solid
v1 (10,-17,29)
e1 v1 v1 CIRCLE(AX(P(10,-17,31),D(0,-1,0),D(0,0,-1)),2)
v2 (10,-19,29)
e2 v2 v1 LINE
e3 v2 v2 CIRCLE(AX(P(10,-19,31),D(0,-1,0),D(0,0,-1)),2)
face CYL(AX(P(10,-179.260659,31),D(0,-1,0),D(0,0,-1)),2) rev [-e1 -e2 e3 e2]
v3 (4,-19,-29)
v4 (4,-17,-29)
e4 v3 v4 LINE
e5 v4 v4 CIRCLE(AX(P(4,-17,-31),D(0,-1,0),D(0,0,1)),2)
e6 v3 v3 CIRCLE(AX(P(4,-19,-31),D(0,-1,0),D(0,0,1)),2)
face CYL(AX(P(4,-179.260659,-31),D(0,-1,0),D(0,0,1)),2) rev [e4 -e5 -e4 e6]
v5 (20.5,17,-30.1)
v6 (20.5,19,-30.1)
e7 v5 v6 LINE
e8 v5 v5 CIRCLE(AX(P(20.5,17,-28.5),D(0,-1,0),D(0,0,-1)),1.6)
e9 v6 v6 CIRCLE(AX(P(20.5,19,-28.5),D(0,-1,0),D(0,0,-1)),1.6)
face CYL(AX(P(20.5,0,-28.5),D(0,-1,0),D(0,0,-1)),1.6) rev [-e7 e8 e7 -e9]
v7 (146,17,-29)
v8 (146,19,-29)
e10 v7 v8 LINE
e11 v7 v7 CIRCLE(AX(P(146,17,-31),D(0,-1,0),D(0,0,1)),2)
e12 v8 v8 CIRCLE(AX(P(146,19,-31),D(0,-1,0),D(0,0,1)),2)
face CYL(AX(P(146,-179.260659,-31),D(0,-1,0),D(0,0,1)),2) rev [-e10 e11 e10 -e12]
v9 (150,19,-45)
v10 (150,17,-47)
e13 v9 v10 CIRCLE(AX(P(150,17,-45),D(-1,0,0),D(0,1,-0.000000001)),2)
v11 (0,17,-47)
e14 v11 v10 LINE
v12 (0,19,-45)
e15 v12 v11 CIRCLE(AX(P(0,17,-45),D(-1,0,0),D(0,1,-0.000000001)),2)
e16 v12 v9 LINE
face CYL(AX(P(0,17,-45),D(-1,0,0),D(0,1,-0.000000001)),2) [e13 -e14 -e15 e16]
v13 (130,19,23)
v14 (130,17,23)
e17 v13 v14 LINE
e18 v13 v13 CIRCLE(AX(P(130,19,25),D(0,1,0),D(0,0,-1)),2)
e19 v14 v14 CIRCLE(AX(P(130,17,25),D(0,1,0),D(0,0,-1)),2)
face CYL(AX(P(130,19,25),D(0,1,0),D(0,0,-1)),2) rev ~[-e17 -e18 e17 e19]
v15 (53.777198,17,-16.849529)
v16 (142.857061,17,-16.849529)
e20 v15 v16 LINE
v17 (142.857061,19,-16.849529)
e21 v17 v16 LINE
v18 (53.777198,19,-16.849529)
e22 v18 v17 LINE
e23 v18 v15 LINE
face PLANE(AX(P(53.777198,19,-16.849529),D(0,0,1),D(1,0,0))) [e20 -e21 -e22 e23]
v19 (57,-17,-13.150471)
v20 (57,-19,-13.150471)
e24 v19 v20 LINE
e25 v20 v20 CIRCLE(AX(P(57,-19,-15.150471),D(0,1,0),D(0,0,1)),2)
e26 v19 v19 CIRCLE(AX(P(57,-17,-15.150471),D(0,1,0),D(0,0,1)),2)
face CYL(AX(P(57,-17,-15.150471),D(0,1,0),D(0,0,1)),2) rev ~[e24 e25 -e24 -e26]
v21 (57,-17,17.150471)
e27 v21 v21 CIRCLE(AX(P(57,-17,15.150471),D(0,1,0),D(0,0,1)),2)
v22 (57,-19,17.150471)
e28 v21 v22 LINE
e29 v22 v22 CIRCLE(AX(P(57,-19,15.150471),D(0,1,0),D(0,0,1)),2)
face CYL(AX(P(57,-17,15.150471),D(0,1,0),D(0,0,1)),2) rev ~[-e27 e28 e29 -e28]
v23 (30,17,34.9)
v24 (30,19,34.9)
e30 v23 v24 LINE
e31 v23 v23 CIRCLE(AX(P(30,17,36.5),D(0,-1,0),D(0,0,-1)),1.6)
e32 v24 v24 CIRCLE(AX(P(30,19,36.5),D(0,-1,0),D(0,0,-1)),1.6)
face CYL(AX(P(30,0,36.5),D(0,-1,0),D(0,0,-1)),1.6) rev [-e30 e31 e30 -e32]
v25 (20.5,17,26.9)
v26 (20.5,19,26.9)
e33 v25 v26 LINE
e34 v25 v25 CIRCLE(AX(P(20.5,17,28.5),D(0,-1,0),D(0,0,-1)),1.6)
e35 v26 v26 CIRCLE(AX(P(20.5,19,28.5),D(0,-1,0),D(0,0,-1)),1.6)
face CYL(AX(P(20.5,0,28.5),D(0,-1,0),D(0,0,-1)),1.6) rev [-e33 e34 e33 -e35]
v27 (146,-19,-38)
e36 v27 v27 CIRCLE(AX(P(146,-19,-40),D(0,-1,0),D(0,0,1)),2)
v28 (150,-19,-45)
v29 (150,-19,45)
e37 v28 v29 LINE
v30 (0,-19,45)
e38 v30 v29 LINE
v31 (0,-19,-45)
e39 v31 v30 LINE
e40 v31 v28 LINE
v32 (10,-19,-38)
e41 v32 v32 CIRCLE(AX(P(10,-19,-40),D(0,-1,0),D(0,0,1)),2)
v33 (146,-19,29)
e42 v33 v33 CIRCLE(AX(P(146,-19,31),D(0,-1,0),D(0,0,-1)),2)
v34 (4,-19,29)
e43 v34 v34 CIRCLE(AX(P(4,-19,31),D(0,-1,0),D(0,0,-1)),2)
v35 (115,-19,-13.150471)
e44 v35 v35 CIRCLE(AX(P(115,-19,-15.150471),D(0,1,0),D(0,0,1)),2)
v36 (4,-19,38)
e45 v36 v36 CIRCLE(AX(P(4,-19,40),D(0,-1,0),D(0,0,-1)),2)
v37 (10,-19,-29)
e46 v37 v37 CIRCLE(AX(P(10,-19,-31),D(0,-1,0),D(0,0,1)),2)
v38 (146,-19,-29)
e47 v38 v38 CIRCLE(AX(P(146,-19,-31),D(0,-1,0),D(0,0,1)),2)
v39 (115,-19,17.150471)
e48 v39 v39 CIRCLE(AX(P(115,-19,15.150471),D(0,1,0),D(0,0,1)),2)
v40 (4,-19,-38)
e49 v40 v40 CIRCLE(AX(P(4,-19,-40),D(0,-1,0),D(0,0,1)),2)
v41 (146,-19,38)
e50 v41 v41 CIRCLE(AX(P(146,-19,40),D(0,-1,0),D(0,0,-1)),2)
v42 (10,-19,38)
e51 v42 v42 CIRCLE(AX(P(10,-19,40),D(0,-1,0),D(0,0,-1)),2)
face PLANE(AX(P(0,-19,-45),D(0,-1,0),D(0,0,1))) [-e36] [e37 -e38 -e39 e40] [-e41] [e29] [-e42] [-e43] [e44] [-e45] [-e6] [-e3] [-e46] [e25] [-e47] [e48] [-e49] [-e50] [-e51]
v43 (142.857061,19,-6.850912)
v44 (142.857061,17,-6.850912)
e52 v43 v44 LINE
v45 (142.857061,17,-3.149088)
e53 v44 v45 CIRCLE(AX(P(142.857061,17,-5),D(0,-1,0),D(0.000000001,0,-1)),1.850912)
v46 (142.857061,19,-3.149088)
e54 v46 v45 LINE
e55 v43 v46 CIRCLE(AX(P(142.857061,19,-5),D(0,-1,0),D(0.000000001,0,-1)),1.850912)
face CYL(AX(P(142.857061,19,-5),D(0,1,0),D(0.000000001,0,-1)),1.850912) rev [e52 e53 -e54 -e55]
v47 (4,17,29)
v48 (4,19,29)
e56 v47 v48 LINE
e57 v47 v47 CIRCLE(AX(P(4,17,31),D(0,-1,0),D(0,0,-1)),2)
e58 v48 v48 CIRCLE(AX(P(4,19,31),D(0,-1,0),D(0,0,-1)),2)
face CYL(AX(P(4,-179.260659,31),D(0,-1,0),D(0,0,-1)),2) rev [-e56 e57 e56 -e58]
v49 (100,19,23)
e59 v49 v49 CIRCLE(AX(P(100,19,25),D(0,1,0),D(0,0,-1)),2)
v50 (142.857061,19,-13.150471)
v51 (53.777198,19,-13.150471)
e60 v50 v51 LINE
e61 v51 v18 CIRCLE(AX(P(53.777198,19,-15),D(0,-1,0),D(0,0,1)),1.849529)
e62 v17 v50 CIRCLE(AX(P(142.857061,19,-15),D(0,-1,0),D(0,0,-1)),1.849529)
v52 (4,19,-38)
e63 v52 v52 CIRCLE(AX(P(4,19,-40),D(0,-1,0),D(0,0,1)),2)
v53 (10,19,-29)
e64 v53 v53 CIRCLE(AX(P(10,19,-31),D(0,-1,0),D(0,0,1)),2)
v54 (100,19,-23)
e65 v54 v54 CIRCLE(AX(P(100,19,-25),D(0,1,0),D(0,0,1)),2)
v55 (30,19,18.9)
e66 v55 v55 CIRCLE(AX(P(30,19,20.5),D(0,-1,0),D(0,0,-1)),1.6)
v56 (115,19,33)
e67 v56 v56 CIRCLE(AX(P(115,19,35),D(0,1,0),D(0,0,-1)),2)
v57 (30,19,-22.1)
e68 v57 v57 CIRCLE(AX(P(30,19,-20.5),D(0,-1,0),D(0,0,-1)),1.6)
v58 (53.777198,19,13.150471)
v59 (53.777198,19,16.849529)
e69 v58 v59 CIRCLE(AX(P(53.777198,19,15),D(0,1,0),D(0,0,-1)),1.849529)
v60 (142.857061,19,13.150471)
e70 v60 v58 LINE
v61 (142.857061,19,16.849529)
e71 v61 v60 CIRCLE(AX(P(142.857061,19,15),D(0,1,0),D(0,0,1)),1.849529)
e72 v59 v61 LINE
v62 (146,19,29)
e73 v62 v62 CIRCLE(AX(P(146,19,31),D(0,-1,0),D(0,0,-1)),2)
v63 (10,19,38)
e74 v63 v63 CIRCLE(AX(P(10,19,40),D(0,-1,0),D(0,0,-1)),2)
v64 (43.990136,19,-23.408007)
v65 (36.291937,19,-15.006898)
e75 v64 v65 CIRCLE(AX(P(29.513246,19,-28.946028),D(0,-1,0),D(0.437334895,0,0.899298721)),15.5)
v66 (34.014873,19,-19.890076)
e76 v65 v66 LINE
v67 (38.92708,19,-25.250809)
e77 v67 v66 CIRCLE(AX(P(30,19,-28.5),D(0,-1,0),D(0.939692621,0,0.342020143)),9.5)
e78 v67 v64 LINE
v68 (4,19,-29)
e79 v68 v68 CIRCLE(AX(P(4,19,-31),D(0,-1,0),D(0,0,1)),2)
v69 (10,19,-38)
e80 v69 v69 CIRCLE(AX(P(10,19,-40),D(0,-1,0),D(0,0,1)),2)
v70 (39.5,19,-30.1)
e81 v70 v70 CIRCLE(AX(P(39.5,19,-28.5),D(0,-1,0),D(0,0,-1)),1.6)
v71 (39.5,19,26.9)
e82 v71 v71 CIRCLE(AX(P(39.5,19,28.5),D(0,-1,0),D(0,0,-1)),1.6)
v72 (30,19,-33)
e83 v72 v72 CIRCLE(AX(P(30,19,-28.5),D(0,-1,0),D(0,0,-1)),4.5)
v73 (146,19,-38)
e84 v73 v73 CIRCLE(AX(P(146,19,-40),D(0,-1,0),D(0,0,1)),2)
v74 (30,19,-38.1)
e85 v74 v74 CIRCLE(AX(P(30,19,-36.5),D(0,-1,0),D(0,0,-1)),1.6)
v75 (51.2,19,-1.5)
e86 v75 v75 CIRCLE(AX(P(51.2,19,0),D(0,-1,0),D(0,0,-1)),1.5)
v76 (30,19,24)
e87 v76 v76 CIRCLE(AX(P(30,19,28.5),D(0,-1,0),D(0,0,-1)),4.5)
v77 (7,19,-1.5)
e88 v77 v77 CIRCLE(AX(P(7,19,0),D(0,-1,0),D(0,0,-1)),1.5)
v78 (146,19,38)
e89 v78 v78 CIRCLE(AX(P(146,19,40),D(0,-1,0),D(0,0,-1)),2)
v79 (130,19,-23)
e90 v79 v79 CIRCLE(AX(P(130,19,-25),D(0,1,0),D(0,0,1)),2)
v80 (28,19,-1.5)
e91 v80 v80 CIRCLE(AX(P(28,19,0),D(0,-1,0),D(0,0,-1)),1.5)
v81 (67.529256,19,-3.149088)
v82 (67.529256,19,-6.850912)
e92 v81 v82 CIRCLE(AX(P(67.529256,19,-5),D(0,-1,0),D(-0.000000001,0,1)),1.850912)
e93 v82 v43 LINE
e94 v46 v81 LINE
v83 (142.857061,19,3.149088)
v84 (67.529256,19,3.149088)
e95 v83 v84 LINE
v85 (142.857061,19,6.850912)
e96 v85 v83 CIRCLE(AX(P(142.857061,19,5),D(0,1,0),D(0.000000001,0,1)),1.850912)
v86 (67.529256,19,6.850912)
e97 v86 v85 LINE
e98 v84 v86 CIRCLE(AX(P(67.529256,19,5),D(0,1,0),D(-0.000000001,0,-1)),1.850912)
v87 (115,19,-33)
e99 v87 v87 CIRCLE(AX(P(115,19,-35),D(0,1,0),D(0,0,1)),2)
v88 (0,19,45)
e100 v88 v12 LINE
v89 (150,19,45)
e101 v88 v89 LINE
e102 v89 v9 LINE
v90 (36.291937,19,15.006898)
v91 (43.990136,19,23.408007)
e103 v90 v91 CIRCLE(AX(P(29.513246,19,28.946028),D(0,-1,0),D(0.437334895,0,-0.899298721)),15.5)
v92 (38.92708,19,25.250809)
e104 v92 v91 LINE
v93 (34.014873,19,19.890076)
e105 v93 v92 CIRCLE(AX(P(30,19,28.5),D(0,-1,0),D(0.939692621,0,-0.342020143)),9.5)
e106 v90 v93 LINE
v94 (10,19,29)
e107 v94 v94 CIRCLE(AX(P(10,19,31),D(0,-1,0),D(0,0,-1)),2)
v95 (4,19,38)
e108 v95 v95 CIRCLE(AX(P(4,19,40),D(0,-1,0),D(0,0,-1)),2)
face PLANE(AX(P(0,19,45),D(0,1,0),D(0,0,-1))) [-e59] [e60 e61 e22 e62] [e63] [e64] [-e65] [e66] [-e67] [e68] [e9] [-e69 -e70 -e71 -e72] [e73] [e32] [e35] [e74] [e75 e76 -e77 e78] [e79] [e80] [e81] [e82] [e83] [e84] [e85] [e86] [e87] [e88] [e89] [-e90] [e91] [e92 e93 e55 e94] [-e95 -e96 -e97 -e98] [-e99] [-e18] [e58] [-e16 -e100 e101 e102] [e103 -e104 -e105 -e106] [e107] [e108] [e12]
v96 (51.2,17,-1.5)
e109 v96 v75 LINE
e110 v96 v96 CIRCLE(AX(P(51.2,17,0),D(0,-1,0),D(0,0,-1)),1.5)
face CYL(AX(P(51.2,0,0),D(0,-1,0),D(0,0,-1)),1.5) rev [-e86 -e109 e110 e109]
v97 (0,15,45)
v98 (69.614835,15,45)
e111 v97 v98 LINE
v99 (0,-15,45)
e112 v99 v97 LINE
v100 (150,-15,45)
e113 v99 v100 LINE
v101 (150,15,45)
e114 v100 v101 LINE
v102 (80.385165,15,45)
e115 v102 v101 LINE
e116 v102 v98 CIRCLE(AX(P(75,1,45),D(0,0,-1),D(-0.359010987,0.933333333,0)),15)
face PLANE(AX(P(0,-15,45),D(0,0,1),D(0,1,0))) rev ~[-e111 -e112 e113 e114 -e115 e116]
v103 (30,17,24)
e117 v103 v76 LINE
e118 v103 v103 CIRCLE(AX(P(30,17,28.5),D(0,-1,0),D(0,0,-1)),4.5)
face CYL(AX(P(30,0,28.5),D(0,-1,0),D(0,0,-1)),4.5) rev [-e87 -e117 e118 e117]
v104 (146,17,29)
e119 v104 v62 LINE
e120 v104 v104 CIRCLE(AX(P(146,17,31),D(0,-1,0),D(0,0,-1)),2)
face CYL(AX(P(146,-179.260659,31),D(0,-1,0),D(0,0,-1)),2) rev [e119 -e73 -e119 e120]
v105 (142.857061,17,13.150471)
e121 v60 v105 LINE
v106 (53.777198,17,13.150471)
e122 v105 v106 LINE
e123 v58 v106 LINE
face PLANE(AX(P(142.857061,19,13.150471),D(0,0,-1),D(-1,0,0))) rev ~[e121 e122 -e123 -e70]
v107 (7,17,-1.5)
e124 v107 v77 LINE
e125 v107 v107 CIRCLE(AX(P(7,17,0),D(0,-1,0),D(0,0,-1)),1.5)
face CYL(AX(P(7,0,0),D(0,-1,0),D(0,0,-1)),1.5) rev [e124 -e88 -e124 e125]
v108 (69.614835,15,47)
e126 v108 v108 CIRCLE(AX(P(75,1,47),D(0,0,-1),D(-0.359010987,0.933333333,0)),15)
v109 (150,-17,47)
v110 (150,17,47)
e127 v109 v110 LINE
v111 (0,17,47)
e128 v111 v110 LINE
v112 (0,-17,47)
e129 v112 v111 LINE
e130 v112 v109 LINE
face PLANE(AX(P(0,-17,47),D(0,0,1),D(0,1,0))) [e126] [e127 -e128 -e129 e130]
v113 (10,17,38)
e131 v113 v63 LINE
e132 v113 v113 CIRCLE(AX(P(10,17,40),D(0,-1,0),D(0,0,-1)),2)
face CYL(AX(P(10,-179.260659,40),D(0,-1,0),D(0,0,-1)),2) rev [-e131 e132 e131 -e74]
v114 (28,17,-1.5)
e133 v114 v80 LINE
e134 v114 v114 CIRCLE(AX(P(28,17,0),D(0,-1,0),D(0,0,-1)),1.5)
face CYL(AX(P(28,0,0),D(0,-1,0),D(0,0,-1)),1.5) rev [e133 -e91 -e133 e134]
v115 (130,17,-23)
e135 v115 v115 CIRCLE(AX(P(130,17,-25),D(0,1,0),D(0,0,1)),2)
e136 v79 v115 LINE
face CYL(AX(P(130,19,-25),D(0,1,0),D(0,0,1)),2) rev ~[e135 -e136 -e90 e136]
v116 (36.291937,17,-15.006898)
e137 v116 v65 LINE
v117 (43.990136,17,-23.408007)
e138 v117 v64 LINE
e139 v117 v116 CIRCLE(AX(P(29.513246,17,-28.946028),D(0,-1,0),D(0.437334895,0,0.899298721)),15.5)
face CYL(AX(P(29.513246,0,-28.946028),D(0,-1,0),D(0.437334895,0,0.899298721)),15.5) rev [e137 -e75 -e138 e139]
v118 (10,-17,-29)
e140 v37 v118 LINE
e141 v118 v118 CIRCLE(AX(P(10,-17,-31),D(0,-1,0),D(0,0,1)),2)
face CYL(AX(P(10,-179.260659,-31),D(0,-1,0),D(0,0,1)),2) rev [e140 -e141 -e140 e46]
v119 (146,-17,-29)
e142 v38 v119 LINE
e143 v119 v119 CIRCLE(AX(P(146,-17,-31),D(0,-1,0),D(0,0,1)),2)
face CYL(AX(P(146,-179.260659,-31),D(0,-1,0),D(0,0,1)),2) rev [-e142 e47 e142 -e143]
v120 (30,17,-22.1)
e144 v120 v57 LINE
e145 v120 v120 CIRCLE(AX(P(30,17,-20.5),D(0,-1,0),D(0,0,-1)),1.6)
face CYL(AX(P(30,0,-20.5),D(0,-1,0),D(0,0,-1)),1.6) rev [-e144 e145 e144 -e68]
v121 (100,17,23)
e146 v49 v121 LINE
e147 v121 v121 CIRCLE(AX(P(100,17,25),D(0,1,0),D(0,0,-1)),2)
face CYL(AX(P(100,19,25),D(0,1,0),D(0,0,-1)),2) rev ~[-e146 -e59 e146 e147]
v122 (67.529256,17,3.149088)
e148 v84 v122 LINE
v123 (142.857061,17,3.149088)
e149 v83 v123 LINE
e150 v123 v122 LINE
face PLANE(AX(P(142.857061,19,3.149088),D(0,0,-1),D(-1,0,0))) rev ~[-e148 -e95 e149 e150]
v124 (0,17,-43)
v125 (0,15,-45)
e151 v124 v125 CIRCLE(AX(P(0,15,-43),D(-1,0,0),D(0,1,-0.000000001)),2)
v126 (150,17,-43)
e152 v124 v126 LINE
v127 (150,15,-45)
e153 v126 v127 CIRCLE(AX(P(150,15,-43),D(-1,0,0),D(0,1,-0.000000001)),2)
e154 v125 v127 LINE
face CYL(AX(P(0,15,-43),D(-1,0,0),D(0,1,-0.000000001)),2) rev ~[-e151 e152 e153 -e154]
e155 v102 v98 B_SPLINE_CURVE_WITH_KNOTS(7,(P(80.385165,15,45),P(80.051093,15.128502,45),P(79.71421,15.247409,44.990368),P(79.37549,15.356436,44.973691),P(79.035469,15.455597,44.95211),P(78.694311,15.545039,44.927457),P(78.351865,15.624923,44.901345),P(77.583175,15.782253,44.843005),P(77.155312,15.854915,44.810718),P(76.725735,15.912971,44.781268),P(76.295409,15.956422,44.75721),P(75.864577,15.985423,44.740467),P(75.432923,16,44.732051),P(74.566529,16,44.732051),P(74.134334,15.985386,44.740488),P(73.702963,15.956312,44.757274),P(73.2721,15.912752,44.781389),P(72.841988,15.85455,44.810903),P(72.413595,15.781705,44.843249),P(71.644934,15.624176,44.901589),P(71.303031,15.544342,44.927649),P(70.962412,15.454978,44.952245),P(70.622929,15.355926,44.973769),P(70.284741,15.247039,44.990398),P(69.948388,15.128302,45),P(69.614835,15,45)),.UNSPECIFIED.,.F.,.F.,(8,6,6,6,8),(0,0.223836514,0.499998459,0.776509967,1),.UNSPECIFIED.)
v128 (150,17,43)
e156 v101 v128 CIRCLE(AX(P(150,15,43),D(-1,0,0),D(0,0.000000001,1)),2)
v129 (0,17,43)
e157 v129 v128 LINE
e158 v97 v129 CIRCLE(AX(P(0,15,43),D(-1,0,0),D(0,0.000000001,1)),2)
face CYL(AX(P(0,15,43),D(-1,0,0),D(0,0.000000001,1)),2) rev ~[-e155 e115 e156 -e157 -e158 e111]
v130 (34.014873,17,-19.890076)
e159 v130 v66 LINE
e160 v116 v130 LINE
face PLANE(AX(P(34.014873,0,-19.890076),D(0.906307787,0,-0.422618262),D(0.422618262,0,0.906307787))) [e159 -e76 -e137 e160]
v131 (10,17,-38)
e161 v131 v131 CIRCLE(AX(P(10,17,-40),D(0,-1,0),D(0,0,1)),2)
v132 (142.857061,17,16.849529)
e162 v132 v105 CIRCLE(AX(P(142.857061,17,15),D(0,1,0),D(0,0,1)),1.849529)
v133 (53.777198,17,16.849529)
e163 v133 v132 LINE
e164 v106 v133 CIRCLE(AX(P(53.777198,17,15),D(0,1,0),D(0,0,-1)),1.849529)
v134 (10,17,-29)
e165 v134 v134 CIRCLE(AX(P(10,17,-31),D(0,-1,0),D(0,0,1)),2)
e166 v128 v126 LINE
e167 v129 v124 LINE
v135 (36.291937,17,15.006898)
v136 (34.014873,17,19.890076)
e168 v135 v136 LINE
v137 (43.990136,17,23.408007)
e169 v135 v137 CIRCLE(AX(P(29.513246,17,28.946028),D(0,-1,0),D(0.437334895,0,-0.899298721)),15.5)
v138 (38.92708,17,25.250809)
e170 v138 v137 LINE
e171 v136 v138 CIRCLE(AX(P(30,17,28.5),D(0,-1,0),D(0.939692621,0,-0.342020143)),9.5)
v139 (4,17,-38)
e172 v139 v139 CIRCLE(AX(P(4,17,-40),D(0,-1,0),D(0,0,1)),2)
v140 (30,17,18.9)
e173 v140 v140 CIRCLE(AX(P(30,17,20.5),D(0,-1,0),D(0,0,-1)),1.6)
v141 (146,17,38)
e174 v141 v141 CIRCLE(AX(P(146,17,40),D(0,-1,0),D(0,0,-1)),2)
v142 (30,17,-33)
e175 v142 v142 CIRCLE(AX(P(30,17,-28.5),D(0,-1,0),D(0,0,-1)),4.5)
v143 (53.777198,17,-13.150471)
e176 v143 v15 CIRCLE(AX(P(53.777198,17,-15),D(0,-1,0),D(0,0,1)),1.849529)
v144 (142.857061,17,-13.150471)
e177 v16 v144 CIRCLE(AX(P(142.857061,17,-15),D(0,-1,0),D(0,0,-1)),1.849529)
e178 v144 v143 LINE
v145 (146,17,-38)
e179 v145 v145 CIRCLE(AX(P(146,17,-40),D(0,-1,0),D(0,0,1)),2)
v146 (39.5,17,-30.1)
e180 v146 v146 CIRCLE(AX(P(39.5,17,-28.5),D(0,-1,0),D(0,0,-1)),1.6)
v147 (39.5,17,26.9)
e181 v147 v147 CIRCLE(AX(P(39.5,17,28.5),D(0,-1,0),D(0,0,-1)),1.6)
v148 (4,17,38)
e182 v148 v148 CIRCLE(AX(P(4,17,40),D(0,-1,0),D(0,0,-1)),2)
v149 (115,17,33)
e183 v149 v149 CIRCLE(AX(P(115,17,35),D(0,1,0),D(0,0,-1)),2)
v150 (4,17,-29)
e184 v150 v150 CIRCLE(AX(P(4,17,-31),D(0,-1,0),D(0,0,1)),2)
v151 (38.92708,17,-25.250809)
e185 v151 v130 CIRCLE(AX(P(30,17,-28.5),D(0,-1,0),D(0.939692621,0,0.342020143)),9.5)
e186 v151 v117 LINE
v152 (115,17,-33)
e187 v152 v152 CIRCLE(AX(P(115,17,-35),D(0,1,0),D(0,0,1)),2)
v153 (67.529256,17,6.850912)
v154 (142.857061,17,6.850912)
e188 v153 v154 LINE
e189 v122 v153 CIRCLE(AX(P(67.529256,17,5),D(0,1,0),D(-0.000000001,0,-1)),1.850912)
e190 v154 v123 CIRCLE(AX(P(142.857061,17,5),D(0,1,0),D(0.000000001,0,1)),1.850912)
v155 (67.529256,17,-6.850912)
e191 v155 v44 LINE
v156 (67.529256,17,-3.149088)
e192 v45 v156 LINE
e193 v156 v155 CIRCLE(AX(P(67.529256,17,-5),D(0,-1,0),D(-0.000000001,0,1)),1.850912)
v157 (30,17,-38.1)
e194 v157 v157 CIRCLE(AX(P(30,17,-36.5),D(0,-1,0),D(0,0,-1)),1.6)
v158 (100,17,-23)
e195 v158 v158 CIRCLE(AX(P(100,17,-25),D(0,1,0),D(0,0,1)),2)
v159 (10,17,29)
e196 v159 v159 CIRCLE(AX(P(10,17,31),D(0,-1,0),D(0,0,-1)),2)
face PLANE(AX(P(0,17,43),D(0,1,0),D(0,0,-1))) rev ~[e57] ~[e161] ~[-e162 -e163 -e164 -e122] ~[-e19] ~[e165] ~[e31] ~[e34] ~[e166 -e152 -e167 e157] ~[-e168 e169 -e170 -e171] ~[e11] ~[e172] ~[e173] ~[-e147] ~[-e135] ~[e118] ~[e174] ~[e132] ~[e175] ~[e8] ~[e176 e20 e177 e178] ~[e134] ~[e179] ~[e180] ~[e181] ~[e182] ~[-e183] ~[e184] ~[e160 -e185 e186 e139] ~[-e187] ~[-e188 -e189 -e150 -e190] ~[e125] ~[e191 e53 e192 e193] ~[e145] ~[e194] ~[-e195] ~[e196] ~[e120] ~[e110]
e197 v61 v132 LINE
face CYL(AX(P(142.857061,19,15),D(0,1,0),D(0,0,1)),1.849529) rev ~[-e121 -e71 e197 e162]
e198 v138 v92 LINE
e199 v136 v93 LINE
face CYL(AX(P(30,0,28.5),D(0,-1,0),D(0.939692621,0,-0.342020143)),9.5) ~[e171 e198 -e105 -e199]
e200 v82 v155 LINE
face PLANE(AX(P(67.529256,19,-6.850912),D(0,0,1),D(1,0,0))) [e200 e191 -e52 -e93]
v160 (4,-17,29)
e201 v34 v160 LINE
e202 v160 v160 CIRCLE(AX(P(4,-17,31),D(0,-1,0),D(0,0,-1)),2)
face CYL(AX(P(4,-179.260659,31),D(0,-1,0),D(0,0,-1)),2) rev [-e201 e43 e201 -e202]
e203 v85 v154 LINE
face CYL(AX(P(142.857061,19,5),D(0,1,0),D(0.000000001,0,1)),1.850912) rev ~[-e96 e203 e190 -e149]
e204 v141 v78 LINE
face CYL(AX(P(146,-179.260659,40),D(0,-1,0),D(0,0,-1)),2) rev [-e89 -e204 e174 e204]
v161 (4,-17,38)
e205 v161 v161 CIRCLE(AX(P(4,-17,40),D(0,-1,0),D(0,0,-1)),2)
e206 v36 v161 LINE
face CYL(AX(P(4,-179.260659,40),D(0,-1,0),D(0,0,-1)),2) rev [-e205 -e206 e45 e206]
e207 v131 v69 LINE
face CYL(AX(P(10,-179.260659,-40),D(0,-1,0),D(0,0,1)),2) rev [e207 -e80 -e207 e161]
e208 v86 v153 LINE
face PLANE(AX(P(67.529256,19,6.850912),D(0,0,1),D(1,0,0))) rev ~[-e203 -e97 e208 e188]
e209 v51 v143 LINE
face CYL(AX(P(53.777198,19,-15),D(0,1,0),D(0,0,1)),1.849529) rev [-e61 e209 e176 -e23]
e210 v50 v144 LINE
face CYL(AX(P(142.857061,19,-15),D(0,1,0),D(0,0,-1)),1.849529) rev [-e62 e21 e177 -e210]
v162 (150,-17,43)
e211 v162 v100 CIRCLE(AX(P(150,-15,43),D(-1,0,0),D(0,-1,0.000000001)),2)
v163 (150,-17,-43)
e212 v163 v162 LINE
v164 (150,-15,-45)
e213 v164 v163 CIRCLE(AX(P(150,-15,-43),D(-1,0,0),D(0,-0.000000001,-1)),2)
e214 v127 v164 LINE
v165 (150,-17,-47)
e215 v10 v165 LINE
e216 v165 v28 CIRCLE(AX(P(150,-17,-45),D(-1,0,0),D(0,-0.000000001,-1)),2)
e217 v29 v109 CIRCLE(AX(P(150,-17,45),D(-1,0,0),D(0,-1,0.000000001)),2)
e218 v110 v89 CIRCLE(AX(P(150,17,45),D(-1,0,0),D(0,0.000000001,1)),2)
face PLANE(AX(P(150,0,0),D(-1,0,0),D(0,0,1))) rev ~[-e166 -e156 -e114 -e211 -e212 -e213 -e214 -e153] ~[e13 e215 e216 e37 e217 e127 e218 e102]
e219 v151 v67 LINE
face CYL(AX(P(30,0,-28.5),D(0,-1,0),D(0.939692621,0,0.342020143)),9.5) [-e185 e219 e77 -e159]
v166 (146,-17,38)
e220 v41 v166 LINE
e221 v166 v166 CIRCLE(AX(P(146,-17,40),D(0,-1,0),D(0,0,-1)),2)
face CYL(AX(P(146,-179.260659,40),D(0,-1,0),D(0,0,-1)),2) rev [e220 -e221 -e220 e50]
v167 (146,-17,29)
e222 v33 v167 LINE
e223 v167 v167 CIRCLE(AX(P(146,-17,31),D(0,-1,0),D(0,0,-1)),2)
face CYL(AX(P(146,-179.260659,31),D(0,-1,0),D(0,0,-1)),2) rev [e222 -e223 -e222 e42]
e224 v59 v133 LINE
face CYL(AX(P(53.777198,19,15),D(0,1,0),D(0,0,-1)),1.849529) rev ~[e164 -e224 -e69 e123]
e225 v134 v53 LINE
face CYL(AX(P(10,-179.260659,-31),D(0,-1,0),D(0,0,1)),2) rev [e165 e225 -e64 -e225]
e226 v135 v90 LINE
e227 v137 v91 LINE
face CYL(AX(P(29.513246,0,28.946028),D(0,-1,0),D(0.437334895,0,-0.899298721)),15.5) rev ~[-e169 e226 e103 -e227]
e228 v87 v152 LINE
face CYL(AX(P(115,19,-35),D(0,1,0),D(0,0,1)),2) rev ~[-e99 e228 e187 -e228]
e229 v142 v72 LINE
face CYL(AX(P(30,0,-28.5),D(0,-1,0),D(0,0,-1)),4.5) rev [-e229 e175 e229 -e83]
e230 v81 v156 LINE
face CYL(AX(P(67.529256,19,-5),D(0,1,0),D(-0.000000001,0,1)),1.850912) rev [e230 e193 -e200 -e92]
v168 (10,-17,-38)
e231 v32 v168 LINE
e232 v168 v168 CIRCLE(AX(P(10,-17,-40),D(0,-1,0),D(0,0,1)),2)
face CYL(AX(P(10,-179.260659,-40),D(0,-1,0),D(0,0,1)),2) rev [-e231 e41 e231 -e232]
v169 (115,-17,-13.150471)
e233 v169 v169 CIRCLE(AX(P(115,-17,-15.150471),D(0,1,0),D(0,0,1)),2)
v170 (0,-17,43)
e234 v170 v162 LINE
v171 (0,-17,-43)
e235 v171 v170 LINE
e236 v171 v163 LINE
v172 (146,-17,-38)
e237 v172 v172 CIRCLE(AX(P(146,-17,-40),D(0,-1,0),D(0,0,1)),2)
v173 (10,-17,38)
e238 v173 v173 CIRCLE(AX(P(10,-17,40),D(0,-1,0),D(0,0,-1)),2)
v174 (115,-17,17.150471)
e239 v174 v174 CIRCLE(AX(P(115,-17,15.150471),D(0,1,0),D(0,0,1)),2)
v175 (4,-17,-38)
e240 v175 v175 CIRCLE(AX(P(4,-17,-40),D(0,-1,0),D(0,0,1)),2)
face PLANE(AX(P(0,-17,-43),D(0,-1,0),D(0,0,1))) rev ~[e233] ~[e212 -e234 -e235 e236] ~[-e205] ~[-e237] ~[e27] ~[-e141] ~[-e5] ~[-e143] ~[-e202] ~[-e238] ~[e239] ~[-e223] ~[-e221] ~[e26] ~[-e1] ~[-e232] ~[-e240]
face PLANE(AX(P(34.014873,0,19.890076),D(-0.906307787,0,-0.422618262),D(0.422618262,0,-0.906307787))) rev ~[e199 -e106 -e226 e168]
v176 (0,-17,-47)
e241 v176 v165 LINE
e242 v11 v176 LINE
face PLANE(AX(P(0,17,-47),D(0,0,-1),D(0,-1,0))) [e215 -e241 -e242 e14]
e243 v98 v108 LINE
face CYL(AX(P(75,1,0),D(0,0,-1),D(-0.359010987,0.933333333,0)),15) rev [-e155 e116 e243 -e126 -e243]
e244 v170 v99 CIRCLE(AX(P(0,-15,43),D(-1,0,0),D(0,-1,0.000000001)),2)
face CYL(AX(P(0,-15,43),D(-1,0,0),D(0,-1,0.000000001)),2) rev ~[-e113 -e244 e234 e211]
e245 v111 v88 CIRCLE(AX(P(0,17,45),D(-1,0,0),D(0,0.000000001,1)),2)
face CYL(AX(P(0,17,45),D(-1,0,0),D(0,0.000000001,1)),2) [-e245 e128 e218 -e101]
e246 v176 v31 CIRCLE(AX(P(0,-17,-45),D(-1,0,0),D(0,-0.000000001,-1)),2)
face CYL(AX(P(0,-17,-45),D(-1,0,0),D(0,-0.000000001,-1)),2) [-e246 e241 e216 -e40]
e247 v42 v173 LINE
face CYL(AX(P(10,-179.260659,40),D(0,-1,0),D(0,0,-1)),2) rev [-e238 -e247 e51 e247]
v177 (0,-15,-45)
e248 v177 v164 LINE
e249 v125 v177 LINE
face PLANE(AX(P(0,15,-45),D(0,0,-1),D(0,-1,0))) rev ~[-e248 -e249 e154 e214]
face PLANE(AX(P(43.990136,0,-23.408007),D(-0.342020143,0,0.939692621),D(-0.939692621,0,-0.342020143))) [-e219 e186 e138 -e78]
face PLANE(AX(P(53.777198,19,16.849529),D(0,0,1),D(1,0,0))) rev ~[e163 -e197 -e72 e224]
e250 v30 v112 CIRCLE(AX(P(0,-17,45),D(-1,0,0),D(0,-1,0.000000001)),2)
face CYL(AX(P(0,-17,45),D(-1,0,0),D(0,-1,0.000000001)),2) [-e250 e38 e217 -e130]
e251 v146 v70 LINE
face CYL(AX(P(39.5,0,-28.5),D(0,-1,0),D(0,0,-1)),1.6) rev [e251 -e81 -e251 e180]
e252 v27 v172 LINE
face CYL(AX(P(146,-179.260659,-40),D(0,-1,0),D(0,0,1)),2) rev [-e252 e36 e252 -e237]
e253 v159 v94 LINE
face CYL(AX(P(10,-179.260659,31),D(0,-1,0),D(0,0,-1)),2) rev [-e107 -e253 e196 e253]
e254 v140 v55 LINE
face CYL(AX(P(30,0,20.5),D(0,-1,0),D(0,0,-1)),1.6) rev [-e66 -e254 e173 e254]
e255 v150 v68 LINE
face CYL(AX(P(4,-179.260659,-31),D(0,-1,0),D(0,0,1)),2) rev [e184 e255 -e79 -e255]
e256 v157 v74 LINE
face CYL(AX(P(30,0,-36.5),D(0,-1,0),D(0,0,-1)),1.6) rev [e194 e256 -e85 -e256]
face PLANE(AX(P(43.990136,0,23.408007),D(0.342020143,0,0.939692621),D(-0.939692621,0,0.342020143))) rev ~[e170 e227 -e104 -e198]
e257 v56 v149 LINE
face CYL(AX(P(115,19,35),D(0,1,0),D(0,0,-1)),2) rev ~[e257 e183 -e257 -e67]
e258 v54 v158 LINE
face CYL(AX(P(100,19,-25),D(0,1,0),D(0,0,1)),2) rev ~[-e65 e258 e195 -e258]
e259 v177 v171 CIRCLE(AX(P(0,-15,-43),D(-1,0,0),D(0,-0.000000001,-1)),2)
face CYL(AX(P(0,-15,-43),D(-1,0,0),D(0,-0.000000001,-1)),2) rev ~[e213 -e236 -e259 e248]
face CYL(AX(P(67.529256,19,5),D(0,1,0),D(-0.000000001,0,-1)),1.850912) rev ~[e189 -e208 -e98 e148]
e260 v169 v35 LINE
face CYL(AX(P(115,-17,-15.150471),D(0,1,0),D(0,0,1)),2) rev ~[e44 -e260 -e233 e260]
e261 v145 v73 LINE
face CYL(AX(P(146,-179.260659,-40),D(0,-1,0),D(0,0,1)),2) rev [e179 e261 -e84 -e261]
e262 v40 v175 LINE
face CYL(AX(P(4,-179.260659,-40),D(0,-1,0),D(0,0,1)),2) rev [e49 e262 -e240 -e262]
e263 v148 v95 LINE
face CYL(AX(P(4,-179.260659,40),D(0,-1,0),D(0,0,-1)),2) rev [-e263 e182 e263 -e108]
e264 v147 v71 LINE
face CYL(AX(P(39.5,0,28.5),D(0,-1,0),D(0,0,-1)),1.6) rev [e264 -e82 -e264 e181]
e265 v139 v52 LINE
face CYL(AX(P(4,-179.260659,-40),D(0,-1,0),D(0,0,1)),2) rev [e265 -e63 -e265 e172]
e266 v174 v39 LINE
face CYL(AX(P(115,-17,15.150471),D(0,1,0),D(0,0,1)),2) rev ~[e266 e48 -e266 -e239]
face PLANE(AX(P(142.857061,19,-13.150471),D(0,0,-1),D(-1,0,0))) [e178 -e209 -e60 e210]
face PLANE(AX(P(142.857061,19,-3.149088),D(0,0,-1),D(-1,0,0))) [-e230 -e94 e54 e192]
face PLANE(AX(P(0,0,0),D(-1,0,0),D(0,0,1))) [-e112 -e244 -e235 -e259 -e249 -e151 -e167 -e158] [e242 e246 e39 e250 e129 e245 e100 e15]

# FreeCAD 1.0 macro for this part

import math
import FreeCAD as App
import Part
import Sketcher
from FreeCAD import Vector
Q = App.Units.Quantity

doc = App.newDocument("Part")
params = doc.addObject("Spreadsheet::Sheet", "Params")
for row, (alias, value) in enumerate([
    ("sketch1_radius", "2 mm"),
    ("sketch1_width", "34 mm"),
    ("sketch1_height", "90 mm"),
    ("pad1_length", "150 mm"),
    ("sketch2_diameter", "3 mm"),
    ("sketch2_diameter2", "9 mm"),
    ("sketch2_diameter3", "3.2 mm"),
    ("sketch2_radius", "15.5 mm"),
    ("sketch2_radius2", "9.5 mm"),
    ("sketch3_diameter", "30 mm"),
    ("sketch4_diameter", "4 mm"),
    ("pocket3_length", "2 mm"),
    ("sketch5_diameter", "4 mm"),
    ("sketch6_diameter", "4 mm"),
], start=1):
    params.set(f"A{row}", alias)
    params.set(f"B{row}", "=" + value)
    params.setAlias(f"B{row}", alias)

body = doc.addObject("PartDesign::Body", "Body")

# Sketch on YZ plane
sketch1 = doc.addObject("Sketcher::SketchObject", "Sketch")
body.addObject(sketch1)
sketch1.AttachmentSupport = (doc.YZ_Plane, [""])
sketch1.MapMode = "FlatFace"
sketch1.addGeometry([
    Part.LineSegment(Vector(19, -45, 0), Vector(19, 45, 0)),  # 0
    Part.ArcOfCircle(Part.Circle(Vector(17, 45, 0), Vector(0, 0, 1), 2), math.radians(0), math.radians(90)),  # 1
    Part.LineSegment(Vector(17, 47, 0), Vector(-17, 47, 0)),  # 2
    Part.ArcOfCircle(Part.Circle(Vector(-17, 45, 0), Vector(0, 0, 1), 2), math.radians(90), math.radians(180)),  # 3
    Part.LineSegment(Vector(-19, 45, 0), Vector(-19, -45, 0)),  # 4
    Part.ArcOfCircle(Part.Circle(Vector(-17, -45, 0), Vector(0, 0, 1), 2), math.radians(-180), math.radians(-90)),  # 5
    Part.LineSegment(Vector(-17, -47, 0), Vector(17, -47, 0)),  # 6
    Part.ArcOfCircle(Part.Circle(Vector(17, -45, 0), Vector(0, 0, 1), 2), math.radians(-90), math.radians(0)),  # 7
    Part.LineSegment(Vector(17, 43, 0), Vector(17, -43, 0)),  # 8
    Part.ArcOfCircle(Part.Circle(Vector(15, -43, 0), Vector(0, 0, 1), 2), math.radians(-90), math.radians(0)),  # 9
    Part.LineSegment(Vector(15, -45, 0), Vector(-15, -45, 0)),  # 10
    Part.ArcOfCircle(Part.Circle(Vector(-15, -43, 0), Vector(0, 0, 1), 2), math.radians(-180), math.radians(-90)),  # 11
    Part.LineSegment(Vector(-17, -43, 0), Vector(-17, 43, 0)),  # 12
    Part.ArcOfCircle(Part.Circle(Vector(-15, 43, 0), Vector(0, 0, 1), 2), math.radians(90), math.radians(180)),  # 13
    Part.LineSegment(Vector(-15, 45, 0), Vector(15, 45, 0)),  # 14
    Part.ArcOfCircle(Part.Circle(Vector(15, 43, 0), Vector(0, 0, 1), 2), math.radians(0), math.radians(90)),  # 15
], False)
sketch1.addConstraint([
    Sketcher.Constraint("Tangent", 0, 2, 1, 1),
    Sketcher.Constraint("Tangent", 1, 2, 2, 1),
    Sketcher.Constraint("Tangent", 2, 2, 3, 1),
    Sketcher.Constraint("Tangent", 3, 2, 4, 1),
    Sketcher.Constraint("Tangent", 4, 2, 5, 1),
    Sketcher.Constraint("Tangent", 5, 2, 6, 1),
    Sketcher.Constraint("Tangent", 6, 2, 7, 1),
    Sketcher.Constraint("Tangent", 7, 2, 0, 1),
    Sketcher.Constraint("Tangent", 8, 2, 9, 2),
    Sketcher.Constraint("Tangent", 9, 1, 10, 1),
    Sketcher.Constraint("Tangent", 10, 2, 11, 2),
    Sketcher.Constraint("Tangent", 11, 1, 12, 1),
    Sketcher.Constraint("Tangent", 12, 2, 13, 2),
    Sketcher.Constraint("Tangent", 13, 1, 14, 1),
    Sketcher.Constraint("Tangent", 14, 2, 15, 2),
    Sketcher.Constraint("Tangent", 15, 1, 8, 1),
    Sketcher.Constraint("Vertical", 0),
    Sketcher.Constraint("Horizontal", 2),
    Sketcher.Constraint("Vertical", 4),
    Sketcher.Constraint("Horizontal", 6),
    Sketcher.Constraint("Vertical", 8),
    Sketcher.Constraint("Horizontal", 10),
    Sketcher.Constraint("Vertical", 12),
    Sketcher.Constraint("Horizontal", 14),
    Sketcher.Constraint("Equal", 1, 3),
    Sketcher.Constraint("Equal", 3, 5),
    Sketcher.Constraint("Equal", 5, 7),
    Sketcher.Constraint("Equal", 7, 9),
    Sketcher.Constraint("Equal", 9, 11),
    Sketcher.Constraint("Equal", 11, 13),
    Sketcher.Constraint("Equal", 13, 15),
    Sketcher.Constraint("Symmetric", 1, 3, 5, 3, -1, 1),
    Sketcher.Constraint("Symmetric", 9, 3, 13, 3, -1, 1),
    Sketcher.Constraint("Horizontal", 7, 2, 9, 1),
    Sketcher.Constraint("Vertical", 6, 2, 8, 2),
    Sketcher.Constraint("Radius", 1, Q("2 mm")),
    Sketcher.Constraint("DistanceX", 2, 2, 2, 1, Q("34 mm")),
    Sketcher.Constraint("DistanceY", 0, 1, 0, 2, Q("90 mm")),
])
sketch1.setExpression("Constraints[35]", "Params.sketch1_radius")
sketch1.setExpression("Constraints[36]", "Params.sketch1_width")
sketch1.setExpression("Constraints[37]", "Params.sketch1_height")
pad1 = doc.addObject("PartDesign::Pad", "Pad")
body.addObject(pad1)
pad1.Profile = sketch1
pad1.setExpression("Length", "Params.pad1_length")

# Sketch on XZ plane
sketch2 = doc.addObject("Sketcher::SketchObject", "Sketch001")
body.addObject(sketch2)
sketch2.AttachmentSupport = (doc.XZ_Plane, [""])
sketch2.MapMode = "FlatFace"
sketch2.addGeometry([
    Part.Circle(Vector(7, 0, 0), Vector(0, 0, 1), 1.5),  # 0
    Part.Circle(Vector(28, 0, 0), Vector(0, 0, 1), 1.5),  # 1
    Part.Circle(Vector(51.2, 0, 0), Vector(0, 0, 1), 1.5),  # 2
    Part.Circle(Vector(30, 28.5, 0), Vector(0, 0, 1), 4.5),  # 3
    Part.Circle(Vector(30, -28.5, 0), Vector(0, 0, 1), 4.5),  # 4
    Part.Circle(Vector(20.5, 28.5, 0), Vector(0, 0, 1), 1.6),  # 5
    Part.Circle(Vector(39.5, 28.5, 0), Vector(0, 0, 1), 1.6),  # 6
    Part.Circle(Vector(30, 36.5, 0), Vector(0, 0, 1), 1.6),  # 7
    Part.Circle(Vector(30, 20.5, 0), Vector(0, 0, 1), 1.6),  # 8
    Part.Circle(Vector(39.5, -28.5, 0), Vector(0, 0, 1), 1.6),  # 9
    Part.Circle(Vector(30, -36.5, 0), Vector(0, 0, 1), 1.6),  # 10
    Part.Circle(Vector(20.5, -28.5, 0), Vector(0, 0, 1), 1.6),  # 11
    Part.Circle(Vector(30, -20.5, 0), Vector(0, 0, 1), 1.6),  # 12
    Part.LineSegment(Vector(34, -19.9, 0), Vector(36.3, -15, 0)),  # 13
    Part.ArcOfCircle(Part.Circle(Vector(29.5, -28.9, 0), Vector(0, 0, 1), 15.5), math.radians(21), math.radians(64)),  # 14
    Part.LineSegment(Vector(44, -23.4, 0), Vector(38.9, -25.3, 0)),  # 15
    Part.ArcOfCircle(Part.Circle(Vector(30, -28.5, 0), Vector(0, 0, 1), 9.5), math.radians(20), math.radians(65)),  # 16
    Part.LineSegment(Vector(36.3, 15, 0), Vector(34, 19.9, 0)),  # 17
    Part.ArcOfCircle(Part.Circle(Vector(30, 28.5, 0), Vector(0, 0, 1), 9.5), math.radians(-65), math.radians(-20)),  # 18
    Part.LineSegment(Vector(38.9, 25.3, 0), Vector(44, 23.4, 0)),  # 19
    Part.ArcOfCircle(Part.Circle(Vector(29.5, 28.9, 0), Vector(0, 0, 1), 15.5), math.radians(-64), math.radians(-21)),  # 20
], False)
sketch2.addConstraint([
    Sketcher.Constraint("Coincident", 13, 2, 14, 2),
    Sketcher.Constraint("Coincident", 14, 1, 15, 1),
    Sketcher.Constraint("Coincident", 15, 2, 16, 1),
    Sketcher.Constraint("Coincident", 16, 2, 13, 1),
    Sketcher.Constraint("Coincident", 17, 2, 18, 1),
    Sketcher.Constraint("Coincident", 18, 2, 19, 1),
    Sketcher.Constraint("Coincident", 19, 2, 20, 2),
    Sketcher.Constraint("Coincident", 20, 1, 17, 1),
    Sketcher.Constraint("Coincident", 16, 3, 4, 3),
    Sketcher.Constraint("Coincident", 18, 3, 3, 3),
    Sketcher.Constraint("Equal", 0, 1),
    Sketcher.Constraint("Equal", 1, 2),
    Sketcher.Constraint("Equal", 3, 4),
    Sketcher.Constraint("Equal", 5, 6),
    Sketcher.Constraint("Equal", 6, 7),
    Sketcher.Constraint("Equal", 7, 8),
    Sketcher.Constraint("Equal", 8, 9),
    Sketcher.Constraint("Equal", 9, 10),
    Sketcher.Constraint("Equal", 10, 11),
    Sketcher.Constraint("Equal", 11, 12),
    Sketcher.Constraint("Equal", 16, 18),
    Sketcher.Constraint("Equal", 14, 20),
    Sketcher.Constraint("Symmetric", 3, 3, 4, 3, -1),
    Sketcher.Constraint("Symmetric", 6, 3, 9, 3, -1),
    Sketcher.Constraint("Symmetric", 7, 3, 10, 3, -1),
    Sketcher.Constraint("Symmetric", 5, 3, 11, 3, -1),
    Sketcher.Constraint("Symmetric", 8, 3, 12, 3, -1),
    Sketcher.Constraint("Symmetric", 14, 3, 20, 3, -1),
    Sketcher.Constraint("PointOnObject", 0, 3, -1),
    Sketcher.Constraint("PointOnObject", 1, 3, -1),
    Sketcher.Constraint("PointOnObject", 2, 3, -1),
    Sketcher.Constraint("Horizontal", 3, 3, 5, 3),
    Sketcher.Constraint("Horizontal", 5, 3, 6, 3),
    Sketcher.Constraint("Vertical", 4, 3, 7, 3),
    Sketcher.Constraint("Vertical", 7, 3, 8, 3),
    Sketcher.Constraint("Vertical", 16, 2, 17, 2),
    Sketcher.Constraint("Vertical", 15, 2, 18, 2),
    Sketcher.Constraint("Vertical", 14, 1, 19, 2),
    Sketcher.Constraint("Vertical", 13, 2, 20, 1),
    Sketcher.Constraint("Equal", 13, 15),
    Sketcher.Constraint("Diameter", 0, Q("3 mm")),
    Sketcher.Constraint("Diameter", 3, Q("9 mm")),
    Sketcher.Constraint("Diameter", 5, Q("3.2 mm")),
    Sketcher.Constraint("Radius", 14, Q("15.5 mm")),
    Sketcher.Constraint("Radius", 16, Q("9.5 mm")),
    Sketcher.Constraint("Angle", 13, Q("65 deg")),
    Sketcher.Constraint("Angle", 15, Q("-160 deg")),
    Sketcher.Constraint("DistanceX", -1, 1, 0, 3, Q("7 mm")),
    Sketcher.Constraint("DistanceX", -1, 1, 1, 3, Q("28 mm")),
    Sketcher.Constraint("DistanceX", -1, 1, 3, 3, Q("30 mm")),
    Sketcher.Constraint("DistanceY", 4, 3, 3, 3, Q("57 mm")),
    Sketcher.Constraint("DistanceX", 5, 3, 6, 3, Q("19 mm")),
    Sketcher.Constraint("DistanceY", 3, 3, 7, 3, Q("8 mm")),
    Sketcher.Constraint("DistanceY", 8, 3, 3, 3, Q("8 mm")),
    Sketcher.Constraint("DistanceX", -1, 1, 2, 3, Q("51.2 mm")),
    Sketcher.Constraint("DistanceX", -1, 1, 5, 3, Q("20.5 mm")),
    Sketcher.Constraint("DistanceX", 13, 2, 14, 1, Q("7.698199 mm")),
    Sketcher.Constraint("DistanceY", 15, 2, 14, 1, Q("1.842802 mm")),
    Sketcher.Constraint("DistanceX", -1, 1, 15, 2, Q("38.92708 mm")),
])
sketch2.setExpression("Constraints[40]", "Params.sketch2_diameter")
sketch2.setExpression("Constraints[41]", "Params.sketch2_diameter2")
sketch2.setExpression("Constraints[42]", "Params.sketch2_diameter3")
sketch2.setExpression("Constraints[43]", "Params.sketch2_radius")
sketch2.setExpression("Constraints[44]", "Params.sketch2_radius2")
pocket1 = doc.addObject("PartDesign::Pocket", "Pocket")
body.addObject(pocket1)
pocket1.Profile = sketch2
pocket1.Type = "ThroughAll"

# Sketch on XY plane
sketch3 = doc.addObject("Sketcher::SketchObject", "Sketch002")
body.addObject(sketch3)
sketch3.AttachmentSupport = (doc.XY_Plane, [""])
sketch3.MapMode = "FlatFace"
sketch3.addGeometry(Part.Circle(Vector(75, 1, 0), Vector(0, 0, 1), 15), False)
sketch3.addConstraint([
    Sketcher.Constraint("Diameter", 0, Q("30 mm")),
    Sketcher.Constraint("DistanceX", -1, 1, 0, 3, Q("75 mm")),
    Sketcher.Constraint("DistanceY", -1, 1, 0, 3, Q("1 mm")),
])
sketch3.setExpression("Constraints[0]", "Params.sketch3_diameter")
pocket2 = doc.addObject("PartDesign::Pocket", "Pocket001")
body.addObject(pocket2)
pocket2.Profile = sketch3
pocket2.Type = "ThroughAll"
pocket2.Reversed = True

# Sketch on XZ plane
sketch4 = doc.addObject("Sketcher::SketchObject", "Sketch003")
body.addObject(sketch4)
sketch4.AttachmentSupport = (doc.XZ_Plane, [""])
sketch4.MapMode = "FlatFace"
sketch4.AttachmentOffset = App.Placement(Vector(0, 0, -19), App.Rotation())
sketch4.addGeometry([
    Part.Circle(Vector(100, -25, 0), Vector(0, 0, 1), 2),  # 0
    Part.Circle(Vector(130, -25, 0), Vector(0, 0, 1), 2),  # 1
    Part.Circle(Vector(115, -35, 0), Vector(0, 0, 1), 2),  # 2
    Part.Circle(Vector(115, 35, 0), Vector(0, 0, 1), 2),  # 3
    Part.Circle(Vector(130, 25, 0), Vector(0, 0, 1), 2),  # 4
    Part.Circle(Vector(100, 25, 0), Vector(0, 0, 1), 2),  # 5
    Part.LineSegment(Vector(142.9, -16.8, 0), Vector(53.8, -16.8, 0)),  # 6
    Part.ArcOfCircle(Part.Circle(Vector(53.8, -15, 0), Vector(0, 0, 1), 1.8), math.radians(90), math.radians(270)),  # 7
    Part.LineSegment(Vector(53.8, -13.2, 0), Vector(142.9, -13.2, 0)),  # 8
    Part.ArcOfCircle(Part.Circle(Vector(142.9, -15, 0), Vector(0, 0, 1), 1.8), math.radians(-90), math.radians(90)),  # 9
    Part.LineSegment(Vector(142.9, -6.9, 0), Vector(67.5, -6.9, 0)),  # 10
    Part.ArcOfCircle(Part.Circle(Vector(67.5, -5, 0), Vector(0, 0, 1), 1.9), math.radians(90), math.radians(270)),  # 11
    Part.LineSegment(Vector(67.5, -3.1, 0), Vector(142.9, -3.1, 0)),  # 12
    Part.ArcOfCircle(Part.Circle(Vector(142.9, -5, 0), Vector(0, 0, 1), 1.9), math.radians(-90), math.radians(90)),  # 13
    Part.LineSegment(Vector(53.8, 16.8, 0), Vector(142.9, 16.8, 0)),  # 14
    Part.ArcOfCircle(Part.Circle(Vector(142.9, 15, 0), Vector(0, 0, 1), 1.8), math.radians(-90), math.radians(90)),  # 15
    Part.LineSegment(Vector(142.9, 13.2, 0), Vector(53.8, 13.2, 0)),  # 16
    Part.ArcOfCircle(Part.Circle(Vector(53.8, 15, 0), Vector(0, 0, 1), 1.8), math.radians(90), math.radians(270)),  # 17
    Part.LineSegment(Vector(67.5, 6.9, 0), Vector(142.9, 6.9, 0)),  # 18
    Part.ArcOfCircle(Part.Circle(Vector(142.9, 5, 0), Vector(0, 0, 1), 1.9), math.radians(-90), math.radians(90)),  # 19
    Part.LineSegment(Vector(142.9, 3.1, 0), Vector(67.5, 3.1, 0)),  # 20
    Part.ArcOfCircle(Part.Circle(Vector(67.5, 5, 0), Vector(0, 0, 1), 1.9), math.radians(90), math.radians(270)),  # 21
], False)
sketch4.addConstraint([
    Sketcher.Constraint("Tangent", 6, 2, 7, 2),
    Sketcher.Constraint("Tangent", 7, 1, 8, 1),
    Sketcher.Constraint("Tangent", 8, 2, 9, 2),
    Sketcher.Constraint("Tangent", 9, 1, 6, 1),
    Sketcher.Constraint("Tangent", 10, 2, 11, 2),
    Sketcher.Constraint("Tangent", 11, 1, 12, 1),
    Sketcher.Constraint("Tangent", 12, 2, 13, 2),
    Sketcher.Constraint("Tangent", 13, 1, 10, 1),
    Sketcher.Constraint("Tangent", 14, 2, 15, 2),
    Sketcher.Constraint("Tangent", 15, 1, 16, 1),
    Sketcher.Constraint("Tangent", 16, 2, 17, 2),
    Sketcher.Constraint("Tangent", 17, 1, 14, 1),
    Sketcher.Constraint("Tangent", 18, 2, 19, 2),
    Sketcher.Constraint("Tangent", 19, 1, 20, 1),
    Sketcher.Constraint("Tangent", 20, 2, 21, 2),
    Sketcher.Constraint("Tangent", 21, 1, 18, 1),
    Sketcher.Constraint("Horizontal", 6),
    Sketcher.Constraint("Horizontal", 8),
    Sketcher.Constraint("Horizontal", 10),
    Sketcher.Constraint("Horizontal", 12),
    Sketcher.Constraint("Horizontal", 14),
    Sketcher.Constraint("Horizontal", 16),
    Sketcher.Constraint("Horizontal", 18),
    Sketcher.Constraint("Horizontal", 20),
    Sketcher.Constraint("Equal", 0, 1),
    Sketcher.Constraint("Equal", 1, 2),
    Sketcher.Constraint("Equal", 2, 3),
    Sketcher.Constraint("Equal", 3, 4),
    Sketcher.Constraint("Equal", 4, 5),
    Sketcher.Constraint("Equal", 9, 15),
    Sketcher.Constraint("Equal", 13, 19),
    Sketcher.Constraint("Symmetric", 2, 3, 3, 3, -1),
    Sketcher.Constraint("Symmetric", 1, 3, 4, 3, -1),
    Sketcher.Constraint("Symmetric", 0, 3, 5, 3, -1),
    Sketcher.Constraint("Symmetric", 9, 3, 15, 3, -1),
    Sketcher.Constraint("Symmetric", 13, 3, 19, 3, -1),
    Sketcher.Constraint("Horizontal", 0, 3, 1, 3),
    Sketcher.Constraint("Vertical", 9, 3, 13, 3),
    Sketcher.Constraint("Vertical", 7, 3, 17, 3),
    Sketcher.Constraint("Vertical", 11, 3, 21, 3),
    Sketcher.Constraint("Diameter", 0, Q("4 mm")),
    Sketcher.Constraint("DistanceX", -1, 1, 0, 3, Q("100 mm")),
    Sketcher.Constraint("DistanceY", 0, 3, -1, 1, Q("25 mm")),
    Sketcher.Constraint("DistanceX", -1, 1, 1, 3, Q("130 mm")),
    Sketcher.Constraint("DistanceX", -1, 1, 2, 3, Q("115 mm")),
    Sketcher.Constraint("DistanceY", 2, 3, -1, 1, Q("35 mm")),
    Sketcher.Constraint("DistanceY", 7, 3, -1, 1, Q("15 mm")),
    Sketcher.Constraint("DistanceY", 11, 3, -1, 1, Q("5 mm")),
    Sketcher.Constraint("Radius", 7, Q("1.849529 mm")),
    Sketcher.Constraint("Radius", 11, Q("1.850912 mm")),
    Sketcher.Constraint("DistanceX", 6, 2, 6, 1, Q("89.079863 mm")),
    Sketcher.Constraint("DistanceX", 10, 2, 10, 1, Q("75.327805 mm")),
    Sketcher.Constraint("DistanceX", -1, 1, 9, 3, Q("142.857061 mm")),
])
sketch4.setExpression("Constraints[40]", "Params.sketch4_diameter")
pocket3 = doc.addObject("PartDesign::Pocket", "Pocket002")
body.addObject(pocket3)
pocket3.Profile = sketch4
pocket3.setExpression("Length", "Params.pocket3_length")
pocket3.Reversed = True

# Sketch on XZ plane
sketch5 = doc.addObject("Sketcher::SketchObject", "Sketch004")
body.addObject(sketch5)
sketch5.AttachmentSupport = (doc.XZ_Plane, [""])
sketch5.MapMode = "FlatFace"
sketch5.AttachmentOffset = App.Placement(Vector(0, 0, 17), App.Rotation())
sketch5.addGeometry([
    Part.Circle(Vector(4, -40, 0), Vector(0, 0, 1), 2),  # 0
    Part.Circle(Vector(4, -31, 0), Vector(0, 0, 1), 2),  # 1
    Part.Circle(Vector(4, 31, 0), Vector(0, 0, 1), 2),  # 2
    Part.Circle(Vector(4, 40, 0), Vector(0, 0, 1), 2),  # 3
    Part.Circle(Vector(146, -40, 0), Vector(0, 0, 1), 2),  # 4
    Part.Circle(Vector(146, -31, 0), Vector(0, 0, 1), 2),  # 5
    Part.Circle(Vector(146, 40, 0), Vector(0, 0, 1), 2),  # 6
    Part.Circle(Vector(146, 31, 0), Vector(0, 0, 1), 2),  # 7
    Part.Circle(Vector(10, -40, 0), Vector(0, 0, 1), 2),  # 8
    Part.Circle(Vector(10, -31, 0), Vector(0, 0, 1), 2),  # 9
    Part.Circle(Vector(10, 40, 0), Vector(0, 0, 1), 2),  # 10
    Part.Circle(Vector(10, 31, 0), Vector(0, 0, 1), 2),  # 11
], False)
sketch5.addConstraint([
    Sketcher.Constraint("Equal", 0, 1),
    Sketcher.Constraint("Equal", 1, 2),
    Sketcher.Constraint("Equal", 2, 3),
    Sketcher.Constraint("Equal", 3, 4),
    Sketcher.Constraint("Equal", 4, 5),
    Sketcher.Constraint("Equal", 5, 6),
    Sketcher.Constraint("Equal", 6, 7),
    Sketcher.Constraint("Equal", 7, 8),
    Sketcher.Constraint("Equal", 8, 9),
    Sketcher.Constraint("Equal", 9, 10),
    Sketcher.Constraint("Equal", 10, 11),
    Sketcher.Constraint("Symmetric", 1, 3, 2, 3, -1),
    Sketcher.Constraint("Symmetric", 0, 3, 3, 3, -1),
    Sketcher.Constraint("Symmetric", 4, 3, 6, 3, -1),
    Sketcher.Constraint("Symmetric", 5, 3, 7, 3, -1),
    Sketcher.Constraint("Symmetric", 8, 3, 10, 3, -1),
    Sketcher.Constraint("Symmetric", 9, 3, 11, 3, -1),
    Sketcher.Constraint("Horizontal", 0, 3, 4, 3),
    Sketcher.Constraint("Horizontal", 1, 3, 5, 3),
    Sketcher.Constraint("Horizontal", 4, 3, 8, 3),
    Sketcher.Constraint("Horizontal", 5, 3, 9, 3),
    Sketcher.Constraint("Vertical", 0, 3, 1, 3),
    Sketcher.Constraint("Vertical", 4, 3, 5, 3),
    Sketcher.Constraint("Vertical", 8, 3, 9, 3),
    Sketcher.Constraint("Diameter", 0, Q("4 mm")),
    Sketcher.Constraint("DistanceX", -1, 1, 0, 3, Q("4 mm")),
    Sketcher.Constraint("DistanceY", 0, 3, -1, 1, Q("40 mm")),
    Sketcher.Constraint("DistanceY", 1, 3, -1, 1, Q("31 mm")),
    Sketcher.Constraint("DistanceX", -1, 1, 4, 3, Q("146 mm")),
    Sketcher.Constraint("DistanceX", -1, 1, 8, 3, Q("10 mm")),
])
sketch5.setExpression("Constraints[24]", "Params.sketch5_diameter")
pocket4 = doc.addObject("PartDesign::Pocket", "Pocket003")
body.addObject(pocket4)
pocket4.Profile = sketch5
pocket4.Type = "ThroughAll"
pocket4.Midplane = True

# Sketch on XZ plane
sketch6 = doc.addObject("Sketcher::SketchObject", "Sketch005")
body.addObject(sketch6)
sketch6.AttachmentSupport = (doc.XZ_Plane, [""])
sketch6.MapMode = "FlatFace"
sketch6.AttachmentOffset = App.Placement(Vector(0, 0, 17), App.Rotation())
sketch6.addGeometry([
    Part.Circle(Vector(57, -15.2, 0), Vector(0, 0, 1), 2),
    Part.Circle(Vector(57, 15.2, 0), Vector(0, 0, 1), 2),
    Part.Circle(Vector(115, -15.2, 0), Vector(0, 0, 1), 2),
    Part.Circle(Vector(115, 15.2, 0), Vector(0, 0, 1), 2),
], False)
sketch6.addConstraint([
    Sketcher.Constraint("Equal", 0, 1),
    Sketcher.Constraint("Equal", 1, 2),
    Sketcher.Constraint("Equal", 2, 3),
    Sketcher.Constraint("Symmetric", 0, 3, 1, 3, -1),
    Sketcher.Constraint("Symmetric", 2, 3, 3, 3, -1),
    Sketcher.Constraint("Horizontal", 0, 3, 2, 3),
    Sketcher.Constraint("Diameter", 0, Q("4 mm")),
    Sketcher.Constraint("DistanceX", -1, 1, 0, 3, Q("57 mm")),
    Sketcher.Constraint("DistanceX", -1, 1, 2, 3, Q("115 mm")),
    Sketcher.Constraint("DistanceY", 0, 3, -1, 1, Q("15.150471 mm")),
])
sketch6.setExpression("Constraints[6]", "Params.sketch6_diameter")
pocket5 = doc.addObject("PartDesign::Pocket", "Pocket004")
body.addObject(pocket5)
pocket5.Profile = sketch6
pocket5.Type = "ThroughAll"
pocket5.Reversed = True

doc.recompute()
